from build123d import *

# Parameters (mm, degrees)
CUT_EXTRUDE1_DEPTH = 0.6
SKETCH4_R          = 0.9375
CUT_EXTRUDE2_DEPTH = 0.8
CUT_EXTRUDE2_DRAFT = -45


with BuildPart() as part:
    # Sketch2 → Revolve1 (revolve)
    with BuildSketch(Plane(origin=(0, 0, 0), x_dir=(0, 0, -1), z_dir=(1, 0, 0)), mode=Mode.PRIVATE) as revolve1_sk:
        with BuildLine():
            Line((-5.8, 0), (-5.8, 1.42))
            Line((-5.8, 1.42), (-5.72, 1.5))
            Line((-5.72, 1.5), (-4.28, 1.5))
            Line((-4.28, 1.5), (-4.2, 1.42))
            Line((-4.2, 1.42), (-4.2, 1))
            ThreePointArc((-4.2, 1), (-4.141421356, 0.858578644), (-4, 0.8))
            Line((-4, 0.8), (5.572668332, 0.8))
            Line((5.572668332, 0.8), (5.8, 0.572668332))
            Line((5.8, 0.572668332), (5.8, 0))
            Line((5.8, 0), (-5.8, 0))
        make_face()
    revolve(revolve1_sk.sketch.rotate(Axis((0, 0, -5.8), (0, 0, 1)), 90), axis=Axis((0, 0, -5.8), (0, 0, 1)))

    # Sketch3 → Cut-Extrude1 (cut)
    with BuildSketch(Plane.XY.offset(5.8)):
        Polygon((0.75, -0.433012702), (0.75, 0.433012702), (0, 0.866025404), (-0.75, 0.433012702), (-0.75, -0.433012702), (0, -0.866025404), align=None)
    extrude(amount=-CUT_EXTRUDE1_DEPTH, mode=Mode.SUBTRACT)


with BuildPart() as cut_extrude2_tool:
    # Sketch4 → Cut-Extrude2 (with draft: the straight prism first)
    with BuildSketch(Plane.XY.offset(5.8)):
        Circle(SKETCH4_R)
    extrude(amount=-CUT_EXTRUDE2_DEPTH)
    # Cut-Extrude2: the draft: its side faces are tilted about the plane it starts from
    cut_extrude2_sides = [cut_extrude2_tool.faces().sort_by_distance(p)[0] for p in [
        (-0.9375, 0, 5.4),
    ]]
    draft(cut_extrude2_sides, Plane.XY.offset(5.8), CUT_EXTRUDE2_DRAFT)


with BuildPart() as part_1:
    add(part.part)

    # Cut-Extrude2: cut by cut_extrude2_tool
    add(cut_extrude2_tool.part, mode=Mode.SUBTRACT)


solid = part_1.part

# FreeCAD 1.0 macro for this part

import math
import FreeCAD as App
import Part
import Sketcher
from FreeCAD import Vector
Q = App.Units.Quantity


def faces_at(feature, points):
    """Names of the faces that lie closest to the given points."""
    faces = feature.Shape.Faces
    near = lambda p: min(range(len(faces)), key=lambda i: faces[i].distToShape(Part.Vertex(*p))[0])
    return sorted({f"Face{near(p) + 1}" for p in points})

doc = App.newDocument("Part")
body = doc.addObject("PartDesign::Body", "Body")

# Sketch on YZ plane
sketch1 = body.newObject("Sketcher::SketchObject", "Sketch")
sketch1.AttachmentSupport = (doc.getObject("YZ_Plane"), [""])
sketch1.MapMode = "FlatFace"
sketch1.addGeometry([
    Part.LineSegment(Vector(1.42, 5.8, 0), Vector(0, 5.8, 0)),  # 0
    Part.LineSegment(Vector(0, 5.8, 0), Vector(0, -5.8, 0)),  # 1
    Part.LineSegment(Vector(0, -5.8, 0), Vector(0.572668, -5.8, 0)),  # 2
    Part.LineSegment(Vector(0.572668, -5.8, 0), Vector(0.8, -5.572668, 0)),  # 3
    Part.LineSegment(Vector(0.8, -5.572668, 0), Vector(0.8, 4, 0)),  # 4
    Part.ArcOfCircle(Part.Circle(Vector(1, 4, 0), Vector(0, 0, 1), 0.2), math.radians(90), math.radians(180)),  # 5
    Part.LineSegment(Vector(1, 4.2, 0), Vector(1.42, 4.2, 0)),  # 6
    Part.LineSegment(Vector(1.42, 4.2, 0), Vector(1.5, 4.28, 0)),  # 7
    Part.LineSegment(Vector(1.5, 4.28, 0), Vector(1.5, 5.72, 0)),  # 8
    Part.LineSegment(Vector(1.5, 5.72, 0), Vector(1.42, 5.8, 0)),  # 9
], False)
sketch1.addConstraint([
    Sketcher.Constraint("Coincident", 0, 2, 1, 1),
    Sketcher.Constraint("Coincident", 1, 2, 2, 1),
    Sketcher.Constraint("Coincident", 2, 2, 3, 1),
    Sketcher.Constraint("Coincident", 3, 2, 4, 1),
    Sketcher.Constraint("Tangent", 4, 2, 5, 2),
    Sketcher.Constraint("Tangent", 5, 1, 6, 1),
    Sketcher.Constraint("Coincident", 6, 2, 7, 1),
    Sketcher.Constraint("Coincident", 7, 2, 8, 1),
    Sketcher.Constraint("Coincident", 8, 2, 9, 1),
    Sketcher.Constraint("Coincident", 9, 2, 0, 1),
    Sketcher.Constraint("Horizontal", 0),
    Sketcher.Constraint("Vertical", 1),
    Sketcher.Constraint("Horizontal", 2),
    Sketcher.Constraint("Vertical", 4),
    Sketcher.Constraint("Horizontal", 6),
    Sketcher.Constraint("Vertical", 8),
    Sketcher.Constraint("Symmetric", 0, 2, 1, 2, -1, 1),
    Sketcher.Constraint("Parallel", 3, 7),
    Sketcher.Constraint("Perpendicular", 7, 9),
    Sketcher.Constraint("Vertical", 6, 2, 9, 2),
    Sketcher.Constraint("Equal", 7, 9),
    Sketcher.Constraint("Radius", 5, Q("0.2 mm")),
    Sketcher.Constraint("DistanceY", 1, 2, 1, 1, Q("11.6 mm")),
    Sketcher.Constraint("DistanceX", -1, 1, 5, 3, Q("1 mm")),
    Sketcher.Constraint("DistanceY", -1, 1, 5, 3, Q("4 mm")),
    Sketcher.Constraint("DistanceX", 0, 2, 0, 1, Q("1.42 mm")),
    Sketcher.Constraint("DistanceY", 8, 1, 8, 2, Q("1.44 mm")),
    Sketcher.Constraint("DistanceX", 2, 1, 2, 2, Q("0.572668 mm")),
])
revolution = body.newObject("PartDesign::Revolution", "Revolution")
revolution.Profile = sketch1
revolution.ReferenceAxis = (sketch1, ["V_Axis"])
revolution.Angle = 360

# Sketch on XY plane
sketch2 = body.newObject("Sketcher::SketchObject", "Sketch001")
sketch2.AttachmentSupport = (doc.getObject("XY_Plane"), [""])
sketch2.MapMode = "FlatFace"
sketch2.AttachmentOffset = App.Placement(Vector(0, 0, 5.8), App.Rotation())
sketch2.addGeometry([
    Part.LineSegment(Vector(0.75, -0.433013, 0), Vector(0.75, 0.433013, 0)),  # 0
    Part.LineSegment(Vector(0.75, 0.433013, 0), Vector(0, 0.866025, 0)),  # 1
    Part.LineSegment(Vector(0, 0.866025, 0), Vector(-0.75, 0.433013, 0)),  # 2
    Part.LineSegment(Vector(-0.75, 0.433013, 0), Vector(-0.75, -0.433013, 0)),  # 3
    Part.LineSegment(Vector(-0.75, -0.433013, 0), Vector(0, -0.866025, 0)),  # 4
    Part.LineSegment(Vector(0, -0.866025, 0), Vector(0.75, -0.433013, 0)),  # 5
], False)
sketch2.addConstraint([
    Sketcher.Constraint("Coincident", 0, 2, 1, 1),
    Sketcher.Constraint("Coincident", 1, 2, 2, 1),
    Sketcher.Constraint("Coincident", 2, 2, 3, 1),
    Sketcher.Constraint("Coincident", 3, 2, 4, 1),
    Sketcher.Constraint("Coincident", 4, 2, 5, 1),
    Sketcher.Constraint("Coincident", 5, 2, 0, 1),
    Sketcher.Constraint("Vertical", 0),
    Sketcher.Constraint("Vertical", 3),
    Sketcher.Constraint("Symmetric", 0, 2, 3, 2, -1, 1),
    Sketcher.Constraint("Symmetric", 1, 2, 4, 2, -1, 1),
    Sketcher.Constraint("PointOnObject", 1, 2, -2),
    Sketcher.Constraint("Parallel", 2, 5),
    Sketcher.Constraint("Horizontal", 0, 2, 2, 2),
    Sketcher.Constraint("Angle", 1, Q("150 deg")),
    Sketcher.Constraint("DistanceX", 2, 2, 0, 2, Q("1.5 mm")),
    Sketcher.Constraint("DistanceY", 0, 1, 0, 2, Q("0.866025 mm")),
])
pocket1 = body.newObject("PartDesign::Pocket", "Pocket")
pocket1.Profile = sketch2
pocket1.Length = 0.6
body2 = doc.addObject("PartDesign::Body", "Body001")

# Sketch on XY plane
sketch3 = body2.newObject("Sketcher::SketchObject", "Sketch002")
sketch3.AttachmentSupport = (doc.getObject("XY_Plane001"), [""])
sketch3.MapMode = "FlatFace"
sketch3.AttachmentOffset = App.Placement(Vector(0, 0, 5.8), App.Rotation())
sketch3.addGeometry(Part.Circle(Vector(0, 0, 0), Vector(0, 0, 1), 0.9375), False)
sketch3.addConstraint([
    Sketcher.Constraint("Coincident", 0, 3, -1, 1),
    Sketcher.Constraint("Diameter", 0, Q("1.875 mm")),
])
pad1 = body2.newObject("PartDesign::Pad", "Pad")
pad1.Profile = sketch3
pad1.Length = 0.8
pad1.Reversed = True
doc.recompute()

datumplane = body2.newObject("PartDesign::Plane", "DatumPlane")
datumplane.AttachmentSupport = (doc.getObject("XY_Plane001"), [""])
datumplane.MapMode = "FlatFace"
datumplane.AttachmentOffset = App.Placement(Vector(0, 0, 5.8), App.Rotation())
draft = body2.newObject("PartDesign::Draft", "Draft")
draft.Base = (pad1, faces_at(pad1, [(-0.938, 0, 5.4)]))
draft.NeutralPlane = (datumplane, [""])
draft.Angle = 45
draft.Reversed = True
doc.recompute()

boolean = body.newObject("PartDesign::Boolean", "Boolean")
boolean.Type = "Cut"
boolean.addObjects([body2])

doc.recompute()
